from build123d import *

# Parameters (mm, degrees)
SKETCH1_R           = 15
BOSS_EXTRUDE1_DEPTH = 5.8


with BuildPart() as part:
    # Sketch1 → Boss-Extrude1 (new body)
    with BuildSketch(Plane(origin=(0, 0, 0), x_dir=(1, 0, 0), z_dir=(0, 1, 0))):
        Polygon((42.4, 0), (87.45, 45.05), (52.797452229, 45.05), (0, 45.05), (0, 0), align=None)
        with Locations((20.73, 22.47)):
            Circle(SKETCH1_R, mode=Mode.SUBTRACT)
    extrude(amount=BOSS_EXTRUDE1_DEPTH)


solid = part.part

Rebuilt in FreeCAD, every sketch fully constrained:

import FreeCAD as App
import Part
import Sketcher
from FreeCAD import Vector
Q = App.Units.Quantity

doc = App.newDocument("Part")
params = doc.addObject("Spreadsheet::Sheet", "Params")
for row, (alias, value) in enumerate([
    ("sketch1_diameter", "30 mm"),
    ("sketch1_width", "42.4 mm"),
    ("sketch1_width2", "87.45 mm"),
    ("pad1_length", "5.8 mm"),
], start=1):
    params.set(f"A{row}", alias)
    params.set(f"B{row}", "=" + value)
    params.setAlias(f"B{row}", alias)

body = doc.addObject("PartDesign::Body", "Body")

sketch1 = body.newObject("Sketcher::SketchObject", "Sketch")
sketch1.AttachmentSupport = (doc.getObject("XZ_Plane"), [""])
sketch1.MapMode = "FlatFace"
sketch1.addGeometry(Part.LineSegment(Vector(42, 0, 0), Vector(87, -45, 0)), False)
sketch1.addGeometry(Part.LineSegment(Vector(87, -45, 0), Vector(0, -45, 0)), False)
sketch1.addGeometry(Part.LineSegment(Vector(0, -45, 0), Vector(0, 0, 0)), False)
sketch1.addGeometry(Part.LineSegment(Vector(0, 0, 0), Vector(42, 0, 0)), False)
sketch1.addGeometry(Part.Circle(Vector(21, -22, 0), Vector(0, 0, 1), 15), False)
sketch1.addConstraint(Sketcher.Constraint("Coincident", 0, 2, 1, 1))
sketch1.addConstraint(Sketcher.Constraint("Coincident", 1, 2, 2, 1))
sketch1.addConstraint(Sketcher.Constraint("Coincident", 2, 2, 3, 1))
sketch1.addConstraint(Sketcher.Constraint("Coincident", 3, 2, 0, 1))
sketch1.addConstraint(Sketcher.Constraint("Horizontal", 1))
sketch1.addConstraint(Sketcher.Constraint("Vertical", 2))
sketch1.addConstraint(Sketcher.Constraint("Horizontal", 3))
sketch1.addConstraint(Sketcher.Constraint("Coincident", 2, 2, -1, 1))
sketch1.addConstraint(Sketcher.Constraint("Diameter", 4, Q("30 mm")))
sketch1.addConstraint(Sketcher.Constraint("Angle", 0, Q("-45 deg")))
sketch1.addConstraint(Sketcher.Constraint("DistanceX", 3, 1, 3, 2, Q("42.4 mm")))
sketch1.addConstraint(Sketcher.Constraint("DistanceX", 1, 2, 1, 1, Q("87.45 mm")))
sketch1.addConstraint(Sketcher.Constraint("DistanceX", -1, 1, 4, 3, Q("20.73 mm")))
sketch1.addConstraint(Sketcher.Constraint("DistanceY", 4, 3, -1, 1, Q("22.47 mm")))
sketch1.setExpression("Constraints[8]", "Params.sketch1_diameter")
sketch1.setExpression("Constraints[10]", "Params.sketch1_width")
sketch1.setExpression("Constraints[11]", "Params.sketch1_width2")
pad1 = body.newObject("PartDesign::Pad", "Pad")
pad1.Profile = sketch1
pad1.setExpression("Length", "Params.pad1_length")
pad1.Reversed = True

doc.recompute()
